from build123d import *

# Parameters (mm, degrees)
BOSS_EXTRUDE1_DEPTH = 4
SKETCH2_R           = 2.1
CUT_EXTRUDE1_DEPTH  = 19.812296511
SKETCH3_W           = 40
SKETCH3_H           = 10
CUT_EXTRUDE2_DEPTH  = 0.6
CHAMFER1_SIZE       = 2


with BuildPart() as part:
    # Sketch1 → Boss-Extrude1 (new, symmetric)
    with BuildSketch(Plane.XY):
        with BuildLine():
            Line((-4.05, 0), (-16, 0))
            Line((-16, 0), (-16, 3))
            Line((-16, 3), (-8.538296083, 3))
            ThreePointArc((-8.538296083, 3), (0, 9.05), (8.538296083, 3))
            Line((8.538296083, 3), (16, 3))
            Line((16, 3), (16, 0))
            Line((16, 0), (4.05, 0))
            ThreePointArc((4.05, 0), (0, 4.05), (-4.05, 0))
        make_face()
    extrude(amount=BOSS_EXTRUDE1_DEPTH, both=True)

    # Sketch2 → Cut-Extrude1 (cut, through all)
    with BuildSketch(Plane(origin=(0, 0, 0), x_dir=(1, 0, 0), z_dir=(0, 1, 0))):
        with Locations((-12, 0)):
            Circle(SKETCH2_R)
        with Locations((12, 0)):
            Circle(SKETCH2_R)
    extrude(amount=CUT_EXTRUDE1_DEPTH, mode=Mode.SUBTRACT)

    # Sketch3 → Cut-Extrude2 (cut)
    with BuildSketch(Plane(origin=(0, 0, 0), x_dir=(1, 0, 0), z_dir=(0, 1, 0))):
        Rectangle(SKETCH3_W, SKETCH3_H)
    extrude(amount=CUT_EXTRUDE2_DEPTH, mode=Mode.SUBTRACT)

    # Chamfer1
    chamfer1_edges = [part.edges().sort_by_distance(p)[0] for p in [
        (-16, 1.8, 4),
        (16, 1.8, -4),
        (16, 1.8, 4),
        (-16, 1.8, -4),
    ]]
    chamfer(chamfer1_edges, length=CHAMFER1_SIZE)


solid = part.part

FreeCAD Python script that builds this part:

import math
import FreeCAD as App
import Part
import Sketcher

V = App.Vector
Q = App.Units.Quantity


def edges_at(feature, points):
    """Names of the edges that pass closest to the given points."""
    edges = feature.Shape.Edges
    near = lambda p: min(range(len(edges)), key=lambda i: edges[i].distToShape(Part.Vertex(*p))[0])
    return sorted({f"Edge{near(p) + 1}" for p in points})


def add_polygon(sketch, points):
    """Adds a closed chain of lines whose ends are joined by coincident constraints."""
    first, n = sketch.GeometryCount, len(points)
    for a, b in zip(points, points[1:] + points[:1]):
        sketch.addGeometry(Part.LineSegment(App.Vector(*a, 0), App.Vector(*b, 0)), False)
    for i in range(n):
        sketch.addConstraint(Sketcher.Constraint("Coincident", first + i, 2, first + (i + 1) % n, 1))

doc = App.newDocument("Part")
body = doc.addObject("PartDesign::Body", "Body")

# Sketch on XY plane
sketch1 = doc.addObject("Sketcher::SketchObject", "Sketch")
body.addObject(sketch1)
sketch1.AttachmentSupport = (doc.XY_Plane, [""])
sketch1.MapMode = "FlatFace"
sketch1.addGeometry(Part.LineSegment(V(-16, 0, 0), V(-4, 0, 0)), False)
sketch1.addGeometry(Part.ArcOfCircle(Part.Circle(V(0, 0, 0), V(0, 0, 1), 4), math.radians(0), math.radians(180)), False)
sketch1.addGeometry(Part.LineSegment(V(4, 0, 0), V(16, 0, 0)), False)
sketch1.addGeometry(Part.LineSegment(V(16, 0, 0), V(16, 3, 0)), False)
sketch1.addGeometry(Part.LineSegment(V(16, 3, 0), V(8.5, 3, 0)), False)
sketch1.addGeometry(Part.ArcOfCircle(Part.Circle(V(0, 0, 0), V(0, 0, 1), 9.1), math.radians(19), math.radians(161)), False)
sketch1.addGeometry(Part.LineSegment(V(-8.5, 3, 0), V(-16, 3, 0)), False)
sketch1.addGeometry(Part.LineSegment(V(-16, 3, 0), V(-16, 0, 0)), False)
sketch1.addConstraint(Sketcher.Constraint("Coincident", 0, 2, 1, 2))
sketch1.addConstraint(Sketcher.Constraint("Coincident", 1, 1, 2, 1))
sketch1.addConstraint(Sketcher.Constraint("Coincident", 2, 2, 3, 1))
sketch1.addConstraint(Sketcher.Constraint("Coincident", 3, 2, 4, 1))
sketch1.addConstraint(Sketcher.Constraint("Coincident", 4, 2, 5, 1))
sketch1.addConstraint(Sketcher.Constraint("Coincident", 5, 2, 6, 1))
sketch1.addConstraint(Sketcher.Constraint("Coincident", 6, 2, 7, 1))
sketch1.addConstraint(Sketcher.Constraint("Coincident", 7, 2, 0, 1))
sketch1.addConstraint(Sketcher.Constraint("Horizontal", 0))
sketch1.addConstraint(Sketcher.Constraint("Horizontal", 2))
sketch1.addConstraint(Sketcher.Constraint("Vertical", 3))
sketch1.addConstraint(Sketcher.Constraint("Horizontal", 4))
sketch1.addConstraint(Sketcher.Constraint("Horizontal", 6))
sketch1.addConstraint(Sketcher.Constraint("Vertical", 7))
sketch1.addConstraint(Sketcher.Constraint("Coincident", 1, 3, -1, 1))
sketch1.addConstraint(Sketcher.Constraint("Coincident", 5, 3, -1, 1))
sketch1.addConstraint(Sketcher.Constraint("Symmetric", 2, 2, 7, 2, -1, 1))
sketch1.addConstraint(Sketcher.Constraint("PointOnObject", 0, 2, -1))
sketch1.addConstraint(Sketcher.Constraint("Horizontal", 4, 2, 5, 2))
sketch1.addConstraint(Sketcher.Constraint("DistanceY", 3, 1, 3, 2, Q("3 mm")))
sketch1.addConstraint(Sketcher.Constraint("Radius", 1, Q("4.05 mm")))
sketch1.addConstraint(Sketcher.Constraint("Radius", 5, Q("9.05 mm")))
sketch1.addConstraint(Sketcher.Constraint("DistanceX", -1, 1, 2, 2, Q("16 mm")))
pad1 = doc.addObject("PartDesign::Pad", "Pad")
body.addObject(pad1)
pad1.Profile = sketch1
pad1.Length = 8
pad1.Midplane = True

# Sketch on XZ plane
sketch2 = doc.addObject("Sketcher::SketchObject", "Sketch001")
body.addObject(sketch2)
sketch2.AttachmentSupport = (doc.XZ_Plane, [""])
sketch2.MapMode = "FlatFace"
sketch2.addGeometry(Part.Circle(V(-12, 0, 0), V(0, 0, 1), 2.1), False)
sketch2.addGeometry(Part.Circle(V(12, 0, 0), V(0, 0, 1), 2.1), False)
sketch2.addConstraint(Sketcher.Constraint("Equal", 0, 1))
sketch2.addConstraint(Sketcher.Constraint("Symmetric", 0, 3, 1, 3, -1, 1))
sketch2.addConstraint(Sketcher.Constraint("PointOnObject", 0, 3, -1))
sketch2.addConstraint(Sketcher.Constraint("Diameter", 0, Q("4.2 mm")))
sketch2.addConstraint(Sketcher.Constraint("DistanceX", 0, 3, -1, 1, Q("12 mm")))
pocket1 = doc.addObject("PartDesign::Pocket", "Pocket")
body.addObject(pocket1)
pocket1.Profile = sketch2
pocket1.Type = "ThroughAll"

# Sketch on XZ plane
sketch3 = doc.addObject("Sketcher::SketchObject", "Sketch002")
body.addObject(sketch3)
sketch3.AttachmentSupport = (doc.XZ_Plane, [""])
sketch3.MapMode = "FlatFace"
add_polygon(sketch3, [(-20, -5), (-20, 5), (20, 5), (20, -5)])  # lines 0-3
sketch3.addConstraint(Sketcher.Constraint("Vertical", 0))
sketch3.addConstraint(Sketcher.Constraint("Horizontal", 1))
sketch3.addConstraint(Sketcher.Constraint("Vertical", 2))
sketch3.addConstraint(Sketcher.Constraint("Horizontal", 3))
sketch3.addConstraint(Sketcher.Constraint("Symmetric", 0, 2, 2, 2, -1, 1))
sketch3.addConstraint(Sketcher.Constraint("DistanceX", 1, 1, 1, 2, Q("40 mm")))
sketch3.addConstraint(Sketcher.Constraint("DistanceY", 0, 1, 0, 2, Q("10 mm")))
pocket2 = doc.addObject("PartDesign::Pocket", "Pocket001")
body.addObject(pocket2)
pocket2.Profile = sketch3
pocket2.Length = 0.6
doc.recompute()

chamfer = doc.addObject("PartDesign::Chamfer", "Chamfer")
body.addObject(chamfer)
chamfer.Base = (pocket2, edges_at(pocket2, [
    (-16, 1.8, 4),
    (16, 1.8, -4),
    (16, 1.8, 4),
    (-16, 1.8, -4),
]))
chamfer.Size = 2

doc.recompute()
